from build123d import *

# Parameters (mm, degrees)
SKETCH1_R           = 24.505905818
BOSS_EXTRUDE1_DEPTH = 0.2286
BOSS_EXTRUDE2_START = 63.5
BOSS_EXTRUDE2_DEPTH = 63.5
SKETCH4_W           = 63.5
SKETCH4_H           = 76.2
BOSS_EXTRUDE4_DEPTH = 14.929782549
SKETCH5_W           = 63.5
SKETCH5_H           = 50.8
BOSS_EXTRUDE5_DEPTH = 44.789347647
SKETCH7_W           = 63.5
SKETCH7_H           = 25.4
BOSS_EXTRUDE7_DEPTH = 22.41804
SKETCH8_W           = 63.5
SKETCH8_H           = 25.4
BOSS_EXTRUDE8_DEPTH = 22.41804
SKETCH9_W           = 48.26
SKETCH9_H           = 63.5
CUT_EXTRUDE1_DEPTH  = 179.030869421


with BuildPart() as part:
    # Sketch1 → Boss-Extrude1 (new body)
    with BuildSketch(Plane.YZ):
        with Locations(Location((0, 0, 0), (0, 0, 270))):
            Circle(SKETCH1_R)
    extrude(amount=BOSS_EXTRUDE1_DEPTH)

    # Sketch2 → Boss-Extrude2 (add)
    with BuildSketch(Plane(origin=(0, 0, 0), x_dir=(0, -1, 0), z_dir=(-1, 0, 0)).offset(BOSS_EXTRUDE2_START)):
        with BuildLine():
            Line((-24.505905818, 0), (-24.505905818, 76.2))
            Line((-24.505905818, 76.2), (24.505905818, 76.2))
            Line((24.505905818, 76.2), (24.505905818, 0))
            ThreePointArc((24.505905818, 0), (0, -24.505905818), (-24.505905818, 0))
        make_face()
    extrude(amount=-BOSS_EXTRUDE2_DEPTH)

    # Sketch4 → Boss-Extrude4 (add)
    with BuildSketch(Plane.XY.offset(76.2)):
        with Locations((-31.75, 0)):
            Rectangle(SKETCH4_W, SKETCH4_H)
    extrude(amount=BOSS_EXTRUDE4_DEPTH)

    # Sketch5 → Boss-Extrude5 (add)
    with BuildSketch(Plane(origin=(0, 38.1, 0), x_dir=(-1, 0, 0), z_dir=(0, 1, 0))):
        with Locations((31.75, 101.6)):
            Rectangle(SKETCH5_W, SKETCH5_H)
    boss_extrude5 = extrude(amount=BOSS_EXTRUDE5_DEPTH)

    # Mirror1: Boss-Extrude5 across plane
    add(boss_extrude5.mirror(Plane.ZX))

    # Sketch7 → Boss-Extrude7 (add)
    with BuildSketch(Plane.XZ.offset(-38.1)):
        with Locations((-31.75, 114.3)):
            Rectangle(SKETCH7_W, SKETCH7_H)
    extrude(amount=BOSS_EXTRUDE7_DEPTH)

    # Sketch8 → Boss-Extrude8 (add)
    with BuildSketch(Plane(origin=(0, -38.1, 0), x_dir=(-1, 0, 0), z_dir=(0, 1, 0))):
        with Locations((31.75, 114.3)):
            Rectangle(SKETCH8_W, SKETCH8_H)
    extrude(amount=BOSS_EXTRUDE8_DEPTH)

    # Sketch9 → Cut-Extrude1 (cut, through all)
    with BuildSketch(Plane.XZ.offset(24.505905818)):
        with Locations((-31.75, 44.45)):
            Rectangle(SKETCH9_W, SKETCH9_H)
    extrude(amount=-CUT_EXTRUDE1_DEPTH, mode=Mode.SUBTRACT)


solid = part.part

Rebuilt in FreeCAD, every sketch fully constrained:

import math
import FreeCAD as App
import Part
import Sketcher
Q = App.Units.Quantity


def add_polygon(sketch, points):
    """Adds a closed chain of lines whose ends are joined by coincident constraints."""
    first, n = sketch.GeometryCount, len(points)
    for a, b in zip(points, points[1:] + points[:1]):
        sketch.addGeometry(Part.LineSegment(App.Vector(*a, 0), App.Vector(*b, 0)), False)
    for i in range(n):
        sketch.addConstraint(Sketcher.Constraint("Coincident", first + i, 2, first + (i + 1) % n, 1))

doc = App.newDocument("Part")
body = doc.addObject("PartDesign::Body", "Body")

sketch1 = doc.addObject("Sketcher::SketchObject", "Sketch")
body.addObject(sketch1)
sketch1.AttachmentSupport = (doc.YZ_Plane, [""])
sketch1.MapMode = "FlatFace"
sketch1.addGeometry(Part.Circle(App.Vector(0, 0, 0), App.Vector(0, 0, 1), 24.505906), False)
sketch1.addConstraint(Sketcher.Constraint("Coincident", 0, 3, -1, 1))
sketch1.addConstraint(Sketcher.Constraint("Diameter", 0, 49.011812))
pad1 = doc.addObject("PartDesign::Pad", "Pad")
body.addObject(pad1)
pad1.Profile = sketch1
pad1.Length = Q("0.009 in")

sketch2 = doc.addObject("Sketcher::SketchObject", "Sketch001")
body.addObject(sketch2)
sketch2.AttachmentSupport = (doc.YZ_Plane, [""])
sketch2.MapMode = "FlatFace"
sketch2.AttachmentOffset = App.Placement(App.Vector(0, 0, -2.5 * 25.4), App.Rotation())
sketch2.addGeometry(Part.LineSegment(App.Vector(24.505906, 76.2, 0), App.Vector(24.505906, 0, 0)), False)
sketch2.addGeometry(Part.ArcOfCircle(Part.Circle(App.Vector(0, 0, 0), App.Vector(0, 0, 1), 24.505906), math.radians(180), math.radians(360)), False)
sketch2.addGeometry(Part.LineSegment(App.Vector(-24.505906, 0, 0), App.Vector(-24.505906, 76.2, 0)), False)
sketch2.addGeometry(Part.LineSegment(App.Vector(-24.505906, 76.2, 0), App.Vector(24.505906, 76.2, 0)), False)
sketch2.addConstraint(Sketcher.Constraint("Tangent", 0, 2, 1, 2))
sketch2.addConstraint(Sketcher.Constraint("Tangent", 1, 1, 2, 1))
sketch2.addConstraint(Sketcher.Constraint("Coincident", 2, 2, 3, 1))
sketch2.addConstraint(Sketcher.Constraint("Coincident", 3, 2, 0, 1))
sketch2.addConstraint(Sketcher.Constraint("Vertical", 0))
sketch2.addConstraint(Sketcher.Constraint("Vertical", 2))
sketch2.addConstraint(Sketcher.Constraint("Horizontal", 3))
sketch2.addConstraint(Sketcher.Constraint("Coincident", 1, 3, -1, 1))
sketch2.addConstraint(Sketcher.Constraint("DistanceY", 0, 2, 0, 1, Q("3 in")))
sketch2.addConstraint(Sketcher.Constraint("Radius", 1, 24.505906))
pad2 = doc.addObject("PartDesign::Pad", "Pad001")
body.addObject(pad2)
pad2.Profile = sketch2
pad2.Length = Q("2.5 in")

sketch3 = doc.addObject("Sketcher::SketchObject", "Sketch002")
body.addObject(sketch3)
sketch3.AttachmentSupport = (doc.XY_Plane, [""])
sketch3.MapMode = "FlatFace"
sketch3.AttachmentOffset = App.Placement(App.Vector(0, 0, 3 * 25.4), App.Rotation())
add_polygon(sketch3, [(-63.5, 38.1), (-63.5, -38.1), (0, -38.1), (0, 38.1)])
sketch3.addConstraint(Sketcher.Constraint("Vertical", 0))
sketch3.addConstraint(Sketcher.Constraint("Horizontal", 1))
sketch3.addConstraint(Sketcher.Constraint("Vertical", 2))
sketch3.addConstraint(Sketcher.Constraint("Horizontal", 3))
sketch3.addConstraint(Sketcher.Constraint("Symmetric", 1, 2, 2, 2, -1, 1))
sketch3.addConstraint(Sketcher.Constraint("DistanceY", 0, 2, 0, 1, Q("3 in")))
sketch3.addConstraint(Sketcher.Constraint("DistanceX", 1, 1, 1, 2, Q("2.5 in")))
pad3 = doc.addObject("PartDesign::Pad", "Pad002")
body.addObject(pad3)
pad3.Profile = sketch3
pad3.Length = 14.929783

sketch4 = doc.addObject("Sketcher::SketchObject", "Sketch003")
body.addObject(sketch4)
sketch4.AttachmentSupport = (doc.XZ_Plane, [""])
sketch4.MapMode = "FlatFace"
sketch4.AttachmentOffset = App.Placement(App.Vector(0, 0, -1.5 * 25.4), App.Rotation())
add_polygon(sketch4, [(0, 127), (0, 76.2), (-63.5, 76.2), (-63.5, 127)])
sketch4.addConstraint(Sketcher.Constraint("Vertical", 0))
sketch4.addConstraint(Sketcher.Constraint("Horizontal", 1))
sketch4.addConstraint(Sketcher.Constraint("Vertical", 2))
sketch4.addConstraint(Sketcher.Constraint("Horizontal", 3))
sketch4.addConstraint(Sketcher.Constraint("PointOnObject", 0, 2, -2))
sketch4.addConstraint(Sketcher.Constraint("DistanceY", 0, 2, 0, 1, Q("2 in")))
sketch4.addConstraint(Sketcher.Constraint("DistanceX", 1, 2, 1, 1, Q("2.5 in")))
sketch4.addConstraint(Sketcher.Constraint("DistanceY", -1, 1, 0, 2, Q("3 in")))
pad4 = doc.addObject("PartDesign::Pad", "Pad003")
body.addObject(pad4)
pad4.Profile = sketch4
pad4.Length = 44.789348
pad4.Reversed = True
doc.recompute()

mirrored = doc.addObject("PartDesign::Mirrored", "Mirrored")
body.addObject(mirrored)
mirrored.Originals = [pad4]
mirrored.MirrorPlane = (doc.XZ_Plane, [""])
body.Tip = mirrored

sketch5 = doc.addObject("Sketcher::SketchObject", "Sketch004")
body.addObject(sketch5)
sketch5.AttachmentSupport = (doc.XZ_Plane, [""])
sketch5.MapMode = "FlatFace"
sketch5.AttachmentOffset = App.Placement(App.Vector(0, 0, -1.5 * 25.4), App.Rotation())
add_polygon(sketch5, [(-63.5, 127), (-63.5, 101.6), (0, 101.6), (0, 127)])
sketch5.addConstraint(Sketcher.Constraint("Vertical", 0))
sketch5.addConstraint(Sketcher.Constraint("Horizontal", 1))
sketch5.addConstraint(Sketcher.Constraint("Vertical", 2))
sketch5.addConstraint(Sketcher.Constraint("Horizontal", 3))
sketch5.addConstraint(Sketcher.Constraint("PointOnObject", 1, 2, -2))
sketch5.addConstraint(Sketcher.Constraint("DistanceY", 0, 2, 0, 1, Q("1 in")))
sketch5.addConstraint(Sketcher.Constraint("DistanceX", 1, 1, 1, 2, Q("2.5 in")))
sketch5.addConstraint(Sketcher.Constraint("DistanceY", -1, 1, 0, 2, Q("4 in")))
pad5 = doc.addObject("PartDesign::Pad", "Pad004")
body.addObject(pad5)
pad5.Profile = sketch5
pad5.Length = Q("0.8826 in")

sketch6 = doc.addObject("Sketcher::SketchObject", "Sketch005")
body.addObject(sketch6)
sketch6.AttachmentSupport = (doc.XZ_Plane, [""])
sketch6.MapMode = "FlatFace"
sketch6.AttachmentOffset = App.Placement(App.Vector(0, 0, 1.5 * 25.4), App.Rotation())
add_polygon(sketch6, [(0, 127), (0, 101.6), (-63.5, 101.6), (-63.5, 127)])
sketch6.addConstraint(Sketcher.Constraint("Vertical", 0))
sketch6.addConstraint(Sketcher.Constraint("Horizontal", 1))
sketch6.addConstraint(Sketcher.Constraint("Vertical", 2))
sketch6.addConstraint(Sketcher.Constraint("Horizontal", 3))
sketch6.addConstraint(Sketcher.Constraint("PointOnObject", 0, 2, -2))
sketch6.addConstraint(Sketcher.Constraint("DistanceY", 0, 2, 0, 1, Q("1 in")))
sketch6.addConstraint(Sketcher.Constraint("DistanceX", 1, 2, 1, 1, Q("2.5 in")))
sketch6.addConstraint(Sketcher.Constraint("DistanceY", -1, 1, 0, 2, Q("4 in")))
pad6 = doc.addObject("PartDesign::Pad", "Pad005")
body.addObject(pad6)
pad6.Profile = sketch6
pad6.Length = Q("0.8826 in")
pad6.Reversed = True

sketch7 = doc.addObject("Sketcher::SketchObject", "Sketch006")
body.addObject(sketch7)
sketch7.AttachmentSupport = (doc.XZ_Plane, [""])
sketch7.MapMode = "FlatFace"
sketch7.AttachmentOffset = App.Placement(App.Vector(0, 0, 24.505906), App.Rotation())
add_polygon(sketch7, [(-55.88, 76.2), (-55.88, 12.7), (-7.62, 12.7), (-7.62, 76.2)])
sketch7.addConstraint(Sketcher.Constraint("Vertical", 0))
sketch7.addConstraint(Sketcher.Constraint("Horizontal", 1))
sketch7.addConstraint(Sketcher.Constraint("Vertical", 2))
sketch7.addConstraint(Sketcher.Constraint("Horizontal", 3))
sketch7.addConstraint(Sketcher.Constraint("DistanceX", 1, 1, 1, 2, Q("1.9 in")))
sketch7.addConstraint(Sketcher.Constraint("DistanceY", 0, 2, 0, 1, Q("2.5 in")))
sketch7.addConstraint(Sketcher.Constraint("DistanceY", -1, 1, 2, 2, Q("3 in")))
sketch7.addConstraint(Sketcher.Constraint("DistanceX", 0, 2, -1, 1, Q("2.2 in")))
pocket1 = doc.addObject("PartDesign::Pocket", "Pocket")
body.addObject(pocket1)
pocket1.Profile = sketch7
pocket1.Type = "ThroughAll"

doc.recompute()
